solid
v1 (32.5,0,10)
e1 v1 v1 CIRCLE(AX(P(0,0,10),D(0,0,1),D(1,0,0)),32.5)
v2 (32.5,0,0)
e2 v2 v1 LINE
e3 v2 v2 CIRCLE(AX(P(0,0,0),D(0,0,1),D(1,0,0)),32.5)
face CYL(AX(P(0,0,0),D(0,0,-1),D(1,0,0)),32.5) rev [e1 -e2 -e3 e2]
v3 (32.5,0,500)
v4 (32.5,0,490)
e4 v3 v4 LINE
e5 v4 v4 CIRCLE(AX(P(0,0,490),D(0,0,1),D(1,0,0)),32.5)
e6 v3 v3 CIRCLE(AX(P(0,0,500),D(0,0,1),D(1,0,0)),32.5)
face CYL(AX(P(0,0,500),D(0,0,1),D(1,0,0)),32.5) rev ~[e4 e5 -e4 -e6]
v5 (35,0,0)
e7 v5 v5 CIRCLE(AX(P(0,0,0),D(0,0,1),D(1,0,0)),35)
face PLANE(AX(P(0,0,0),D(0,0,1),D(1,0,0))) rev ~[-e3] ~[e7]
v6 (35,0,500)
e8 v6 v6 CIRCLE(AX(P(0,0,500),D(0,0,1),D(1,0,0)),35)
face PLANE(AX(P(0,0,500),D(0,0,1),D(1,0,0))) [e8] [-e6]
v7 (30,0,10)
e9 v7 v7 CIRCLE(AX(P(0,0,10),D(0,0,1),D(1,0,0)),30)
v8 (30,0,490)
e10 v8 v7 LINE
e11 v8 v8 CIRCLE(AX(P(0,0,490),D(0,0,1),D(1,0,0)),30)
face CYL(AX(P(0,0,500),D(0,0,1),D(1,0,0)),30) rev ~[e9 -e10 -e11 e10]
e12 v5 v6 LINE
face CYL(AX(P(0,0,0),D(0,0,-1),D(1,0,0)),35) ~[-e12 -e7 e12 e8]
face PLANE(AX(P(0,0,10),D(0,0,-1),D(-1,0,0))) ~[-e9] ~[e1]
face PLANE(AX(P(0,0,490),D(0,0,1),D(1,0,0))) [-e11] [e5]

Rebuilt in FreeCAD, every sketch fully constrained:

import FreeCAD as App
import Part
import Sketcher
from FreeCAD import Vector

doc = App.newDocument("Part")
body = doc.addObject("PartDesign::Body", "Body")

sketch1 = doc.addObject("Sketcher::SketchObject", "Sketch")
body.addObject(sketch1)
sketch1.AttachmentSupport = (doc.XY_Plane, [""])
sketch1.MapMode = "FlatFace"
sketch1.addGeometry(Part.Circle(Vector(0, 0, 0), Vector(0, 0, 1), 35), False)
sketch1.addConstraint([
    Sketcher.Constraint("Coincident", 0, 3, -1, 1),
    Sketcher.Constraint("Diameter", 0, 70.0),
])
pad1 = doc.addObject("PartDesign::Pad", "Pad")
body.addObject(pad1)
pad1.Profile = sketch1
pad1.Length = 500

sketch2 = doc.addObject("Sketcher::SketchObject", "Sketch001")
body.addObject(sketch2)
sketch2.AttachmentSupport = (doc.XY_Plane, [""])
sketch2.MapMode = "FlatFace"
sketch2.AttachmentOffset = App.Placement(Vector(0, 0, 500), App.Rotation())
sketch2.addGeometry(Part.Circle(Vector(0, 0, 0), Vector(0, 0, 1), 30), False)
sketch2.addConstraint([
    Sketcher.Constraint("Coincident", 0, 3, -1, 1),
    Sketcher.Constraint("Diameter", 0, 60.0),
])
pocket1 = doc.addObject("PartDesign::Pocket", "Pocket")
body.addObject(pocket1)
pocket1.Profile = sketch2
pocket1.Length = 500

sketch3 = doc.addObject("Sketcher::SketchObject", "Sketch002")
body.addObject(sketch3)
sketch3.AttachmentSupport = (doc.XY_Plane, [""])
sketch3.MapMode = "FlatFace"
sketch3.AttachmentOffset = App.Placement(Vector(0, 0, 500), App.Rotation())
sketch3.addGeometry(Part.Circle(Vector(0, 0, 0), Vector(0, 0, 1), 32), False)
sketch3.addConstraint([
    Sketcher.Constraint("Coincident", 0, 3, -1, 1),
    Sketcher.Constraint("Diameter", 0, 65.0),
])
pocket2 = doc.addObject("PartDesign::Pocket", "Pocket001")
body.addObject(pocket2)
pocket2.Profile = sketch3
pocket2.Length = 10
doc.recompute()

datumplane = doc.addObject("PartDesign::Plane", "DatumPlane")
body.addObject(datumplane)
datumplane.AttachmentSupport = (doc.XY_Plane, [""])
datumplane.MapMode = "FlatFace"
datumplane.AttachmentOffset = App.Placement(Vector(0, 0, 250), App.Rotation())
mirrored = doc.addObject("PartDesign::Mirrored", "Mirrored")
body.addObject(mirrored)
mirrored.Originals = [pocket2]
mirrored.MirrorPlane = (datumplane, [""])
body.Tip = mirrored

doc.recompute()
